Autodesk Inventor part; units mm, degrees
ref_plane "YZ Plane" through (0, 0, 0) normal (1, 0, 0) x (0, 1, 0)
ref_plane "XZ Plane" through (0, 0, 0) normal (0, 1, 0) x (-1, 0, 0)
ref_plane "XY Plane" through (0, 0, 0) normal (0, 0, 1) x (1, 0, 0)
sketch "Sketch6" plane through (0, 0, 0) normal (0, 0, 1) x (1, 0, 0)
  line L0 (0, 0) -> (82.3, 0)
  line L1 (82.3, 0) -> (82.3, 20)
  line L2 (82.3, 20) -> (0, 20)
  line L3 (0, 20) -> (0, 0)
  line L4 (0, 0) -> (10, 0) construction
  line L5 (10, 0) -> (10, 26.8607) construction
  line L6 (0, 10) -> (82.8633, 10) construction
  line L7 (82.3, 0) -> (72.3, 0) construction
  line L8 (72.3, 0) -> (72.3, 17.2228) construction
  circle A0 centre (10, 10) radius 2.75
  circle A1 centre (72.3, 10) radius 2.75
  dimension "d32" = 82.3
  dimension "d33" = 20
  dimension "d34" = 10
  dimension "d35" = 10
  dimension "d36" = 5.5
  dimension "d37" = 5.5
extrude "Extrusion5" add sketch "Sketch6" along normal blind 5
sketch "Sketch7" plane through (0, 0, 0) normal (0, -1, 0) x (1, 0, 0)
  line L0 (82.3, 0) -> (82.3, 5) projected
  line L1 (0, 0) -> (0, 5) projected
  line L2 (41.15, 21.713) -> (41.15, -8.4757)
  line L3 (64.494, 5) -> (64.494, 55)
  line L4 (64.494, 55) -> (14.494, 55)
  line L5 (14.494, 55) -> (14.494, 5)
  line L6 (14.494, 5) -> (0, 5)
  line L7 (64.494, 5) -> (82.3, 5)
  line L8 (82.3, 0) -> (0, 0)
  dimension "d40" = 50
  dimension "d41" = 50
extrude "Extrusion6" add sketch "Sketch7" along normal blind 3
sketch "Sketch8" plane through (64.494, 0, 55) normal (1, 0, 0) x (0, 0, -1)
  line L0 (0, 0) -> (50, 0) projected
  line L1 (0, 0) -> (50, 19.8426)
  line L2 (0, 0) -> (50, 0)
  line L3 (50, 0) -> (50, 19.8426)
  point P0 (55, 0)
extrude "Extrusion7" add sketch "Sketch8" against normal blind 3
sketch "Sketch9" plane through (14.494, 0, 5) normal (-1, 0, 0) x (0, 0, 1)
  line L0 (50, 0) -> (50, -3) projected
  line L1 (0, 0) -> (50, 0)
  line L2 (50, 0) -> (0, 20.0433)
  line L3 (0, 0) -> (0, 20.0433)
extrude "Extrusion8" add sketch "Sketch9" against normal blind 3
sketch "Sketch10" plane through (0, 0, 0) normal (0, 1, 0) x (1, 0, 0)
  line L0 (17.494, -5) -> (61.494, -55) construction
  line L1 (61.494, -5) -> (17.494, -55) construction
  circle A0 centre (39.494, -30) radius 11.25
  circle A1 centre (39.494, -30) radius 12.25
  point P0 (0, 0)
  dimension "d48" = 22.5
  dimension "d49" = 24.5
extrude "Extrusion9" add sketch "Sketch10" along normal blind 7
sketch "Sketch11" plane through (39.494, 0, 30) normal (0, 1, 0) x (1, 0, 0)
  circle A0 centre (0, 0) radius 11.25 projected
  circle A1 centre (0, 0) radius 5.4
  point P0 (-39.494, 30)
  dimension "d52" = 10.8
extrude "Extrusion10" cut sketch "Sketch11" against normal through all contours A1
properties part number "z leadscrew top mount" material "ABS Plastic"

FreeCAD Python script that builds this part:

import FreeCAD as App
import Part
import Sketcher
from FreeCAD import Vector


def add_polygon(sketch, points):
    """Adds a closed chain of lines whose ends are joined by coincident constraints."""
    first, n = sketch.GeometryCount, len(points)
    for a, b in zip(points, points[1:] + points[:1]):
        sketch.addGeometry(Part.LineSegment(App.Vector(*a, 0), App.Vector(*b, 0)), False)
    for i in range(n):
        sketch.addConstraint(Sketcher.Constraint("Coincident", first + i, 2, first + (i + 1) % n, 1))

doc = App.newDocument("Part")
params = doc.addObject("Spreadsheet::Sheet", "Params")
for row, (alias, value) in enumerate([
    ("sketch1_diameter", "5.5 mm"),
    ("sketch1_height", "20 mm"),
    ("sketch1_width", "82.3 mm"),
    ("pad1_length", "5 mm"),
    ("sketch2_width", "50 mm"),
    ("sketch2_height", "5 mm"),
    ("sketch2_width2", "82.3 mm"),
    ("pad2_length", "3 mm"),
    ("sketch3_height", "50 mm"),
    ("pad3_length", "3 mm"),
    ("sketch4_height", "50 mm"),
    ("pad4_length", "3 mm"),
    ("sketch5_diameter", "24.5 mm"),
    ("sketch5_diameter2", "22.5 mm"),
    ("pad5_length", "7 mm"),
    ("sketch6_diameter", "10.8 mm"),
], start=1):
    params.set(f"A{row}", alias)
    params.set(f"B{row}", "=" + value)
    params.setAlias(f"B{row}", alias)

body = doc.addObject("PartDesign::Body", "Body")

# Sketch on XY plane
sketch1 = doc.addObject("Sketcher::SketchObject", "Sketch")
body.addObject(sketch1)
sketch1.AttachmentSupport = (doc.XY_Plane, [""])
sketch1.MapMode = "FlatFace"
add_polygon(sketch1, [(0, 20), (0, 0), (82.3, 0), (82.3, 20)])  # lines 0-3
sketch1.addGeometry(Part.Circle(Vector(10, 10, 0), Vector(0, 0, 1), 2.8), False)  # 4
sketch1.addGeometry(Part.Circle(Vector(72.3, 10, 0), Vector(0, 0, 1), 2.8), False)  # 5
sketch1.addConstraint(Sketcher.Constraint("Vertical", 0))
sketch1.addConstraint(Sketcher.Constraint("Horizontal", 1))
sketch1.addConstraint(Sketcher.Constraint("Vertical", 2))
sketch1.addConstraint(Sketcher.Constraint("Horizontal", 3))
sketch1.addConstraint(Sketcher.Constraint("Coincident", 0, 2, -1, 1))
sketch1.addConstraint(Sketcher.Constraint("Equal", 4, 5))
sketch1.addConstraint(Sketcher.Constraint("Horizontal", 4, 3, 5, 3))
sketch1.addConstraint(Sketcher.Constraint("Diameter", 4, 5.5))
sketch1.addConstraint(Sketcher.Constraint("DistanceY", 0, 2, 0, 1, 20.0))
sketch1.addConstraint(Sketcher.Constraint("DistanceX", 1, 1, 1, 2, 82.3))
sketch1.addConstraint(Sketcher.Constraint("DistanceX", -1, 1, 4, 3, 10.0))
sketch1.addConstraint(Sketcher.Constraint("DistanceY", -1, 1, 4, 3, 10.0))
sketch1.addConstraint(Sketcher.Constraint("DistanceX", 5, 3, 1, 2, 10.0))
sketch1.setExpression("Constraints[11]", "Params.sketch1_diameter")
sketch1.setExpression("Constraints[12]", "Params.sketch1_height")
sketch1.setExpression("Constraints[13]", "Params.sketch1_width")
pad1 = doc.addObject("PartDesign::Pad", "Pad")
body.addObject(pad1)
pad1.Profile = sketch1
pad1.setExpression("Length", "Params.pad1_length")

# Sketch on XZ plane
sketch2 = doc.addObject("Sketcher::SketchObject", "Sketch001")
body.addObject(sketch2)
sketch2.AttachmentSupport = (doc.XZ_Plane, [""])
sketch2.MapMode = "FlatFace"
add_polygon(sketch2, [(0, 0), (82, 0), (82, 5), (64, 5), (64, 55), (14, 55), (14, 5), (0, 5)])  # lines 0-7
sketch2.addConstraint(Sketcher.Constraint("Horizontal", 0))
sketch2.addConstraint(Sketcher.Constraint("Vertical", 1))
sketch2.addConstraint(Sketcher.Constraint("Horizontal", 2))
sketch2.addConstraint(Sketcher.Constraint("Vertical", 3))
sketch2.addConstraint(Sketcher.Constraint("Horizontal", 4))
sketch2.addConstraint(Sketcher.Constraint("Vertical", 5))
sketch2.addConstraint(Sketcher.Constraint("Horizontal", 6))
sketch2.addConstraint(Sketcher.Constraint("Vertical", 7))
sketch2.addConstraint(Sketcher.Constraint("Coincident", 7, 2, -1, 1))
sketch2.addConstraint(Sketcher.Constraint("Horizontal", 2, 2, 5, 2))
sketch2.addConstraint(Sketcher.Constraint("Equal", 4, 3))
sketch2.addConstraint(Sketcher.Constraint("DistanceX", 4, 2, 4, 1, 50.0))
sketch2.addConstraint(Sketcher.Constraint("DistanceY", 1, 1, 1, 2, 5.0))
sketch2.addConstraint(Sketcher.Constraint("DistanceX", 0, 1, 0, 2, 82.3))
sketch2.addConstraint(Sketcher.Constraint("DistanceX", 2, 2, 2, 1, 17.806))
sketch2.setExpression("Constraints[19]", "Params.sketch2_width")
sketch2.setExpression("Constraints[20]", "Params.sketch2_height")
sketch2.setExpression("Constraints[21]", "Params.sketch2_width2")
pad2 = doc.addObject("PartDesign::Pad", "Pad001")
body.addObject(pad2)
pad2.Profile = sketch2
pad2.setExpression("Length", "Params.pad2_length")

# Sketch on YZ plane
sketch3 = doc.addObject("Sketcher::SketchObject", "Sketch002")
body.addObject(sketch3)
sketch3.AttachmentSupport = (doc.YZ_Plane, [""])
sketch3.MapMode = "FlatFace"
sketch3.AttachmentOffset = App.Placement(Vector(0, 0, 64.494), App.Rotation())
add_polygon(sketch3, [(20, 5), (0, 55), (0, 5)])  # lines 0-2
sketch3.addConstraint(Sketcher.Constraint("Vertical", 1))
sketch3.addConstraint(Sketcher.Constraint("Horizontal", 2))
sketch3.addConstraint(Sketcher.Constraint("PointOnObject", 0, 2, -2))
sketch3.addConstraint(Sketcher.Constraint("DistanceY", 1, 2, 1, 1, 50.0))
sketch3.addConstraint(Sketcher.Constraint("DistanceY", -1, 1, 0, 2, 55.0))
sketch3.addConstraint(Sketcher.Constraint("DistanceX", 2, 1, 2, 2, 19.8426))
sketch3.setExpression("Constraints[6]", "Params.sketch3_height")
pad3 = doc.addObject("PartDesign::Pad", "Pad002")
body.addObject(pad3)
pad3.Profile = sketch3
pad3.setExpression("Length", "Params.pad3_length")
pad3.Reversed = True

# Sketch on YZ plane
sketch4 = doc.addObject("Sketcher::SketchObject", "Sketch003")
body.addObject(sketch4)
sketch4.AttachmentSupport = (doc.YZ_Plane, [""])
sketch4.MapMode = "FlatFace"
sketch4.AttachmentOffset = App.Placement(Vector(0, 0, 14.494), App.Rotation())
add_polygon(sketch4, [(20, 5), (0, 5), (0, 55)])  # lines 0-2
sketch4.addConstraint(Sketcher.Constraint("Horizontal", 0))
sketch4.addConstraint(Sketcher.Constraint("Vertical", 1))
sketch4.addConstraint(Sketcher.Constraint("PointOnObject", 0, 2, -2))
sketch4.addConstraint(Sketcher.Constraint("DistanceY", 1, 1, 1, 2, 50.0))
sketch4.addConstraint(Sketcher.Constraint("DistanceY", -1, 1, 0, 2, 5.0))
sketch4.addConstraint(Sketcher.Constraint("DistanceX", 0, 2, 0, 1, 20.0433))
sketch4.setExpression("Constraints[6]", "Params.sketch4_height")
pad4 = doc.addObject("PartDesign::Pad", "Pad003")
body.addObject(pad4)
pad4.Profile = sketch4
pad4.setExpression("Length", "Params.pad4_length")

# Sketch on XZ plane
sketch5 = doc.addObject("Sketcher::SketchObject", "Sketch004")
body.addObject(sketch5)
sketch5.AttachmentSupport = (doc.XZ_Plane, [""])
sketch5.MapMode = "FlatFace"
sketch5.addGeometry(Part.Circle(Vector(39, 30, 0), Vector(0, 0, 1), 12), False)
sketch5.addGeometry(Part.Circle(Vector(39, 30, 0), Vector(0, 0, 1), 11), False)
sketch5.addConstraint(Sketcher.Constraint("Coincident", 1, 3, 0, 3))
sketch5.addConstraint(Sketcher.Constraint("Diameter", 0, 24.5))
sketch5.addConstraint(Sketcher.Constraint("Diameter", 1, 22.5))
sketch5.addConstraint(Sketcher.Constraint("DistanceY", -1, 1, 0, 3, 30.0))
sketch5.addConstraint(Sketcher.Constraint("DistanceX", -1, 1, 0, 3, 39.494))
sketch5.setExpression("Constraints[1]", "Params.sketch5_diameter")
sketch5.setExpression("Constraints[2]", "Params.sketch5_diameter2")
pad5 = doc.addObject("PartDesign::Pad", "Pad004")
body.addObject(pad5)
pad5.Profile = sketch5
pad5.setExpression("Length", "Params.pad5_length")
pad5.Reversed = True

# Sketch on XZ plane
sketch6 = doc.addObject("Sketcher::SketchObject", "Sketch005")
body.addObject(sketch6)
sketch6.AttachmentSupport = (doc.XZ_Plane, [""])
sketch6.MapMode = "FlatFace"
sketch6.addGeometry(Part.Circle(Vector(39, 30, 0), Vector(0, 0, 1), 5), False)
sketch6.addConstraint(Sketcher.Constraint("Diameter", 0, 10.8))
sketch6.addConstraint(Sketcher.Constraint("DistanceY", -1, 1, 0, 3, 30.0))
sketch6.addConstraint(Sketcher.Constraint("DistanceX", -1, 1, 0, 3, 39.494))
sketch6.setExpression("Constraints[0]", "Params.sketch6_diameter")
pocket1 = doc.addObject("PartDesign::Pocket", "Pocket")
body.addObject(pocket1)
pocket1.Profile = sketch6
pocket1.Type = "ThroughAll"
pocket1.Reversed = True

doc.recompute()
